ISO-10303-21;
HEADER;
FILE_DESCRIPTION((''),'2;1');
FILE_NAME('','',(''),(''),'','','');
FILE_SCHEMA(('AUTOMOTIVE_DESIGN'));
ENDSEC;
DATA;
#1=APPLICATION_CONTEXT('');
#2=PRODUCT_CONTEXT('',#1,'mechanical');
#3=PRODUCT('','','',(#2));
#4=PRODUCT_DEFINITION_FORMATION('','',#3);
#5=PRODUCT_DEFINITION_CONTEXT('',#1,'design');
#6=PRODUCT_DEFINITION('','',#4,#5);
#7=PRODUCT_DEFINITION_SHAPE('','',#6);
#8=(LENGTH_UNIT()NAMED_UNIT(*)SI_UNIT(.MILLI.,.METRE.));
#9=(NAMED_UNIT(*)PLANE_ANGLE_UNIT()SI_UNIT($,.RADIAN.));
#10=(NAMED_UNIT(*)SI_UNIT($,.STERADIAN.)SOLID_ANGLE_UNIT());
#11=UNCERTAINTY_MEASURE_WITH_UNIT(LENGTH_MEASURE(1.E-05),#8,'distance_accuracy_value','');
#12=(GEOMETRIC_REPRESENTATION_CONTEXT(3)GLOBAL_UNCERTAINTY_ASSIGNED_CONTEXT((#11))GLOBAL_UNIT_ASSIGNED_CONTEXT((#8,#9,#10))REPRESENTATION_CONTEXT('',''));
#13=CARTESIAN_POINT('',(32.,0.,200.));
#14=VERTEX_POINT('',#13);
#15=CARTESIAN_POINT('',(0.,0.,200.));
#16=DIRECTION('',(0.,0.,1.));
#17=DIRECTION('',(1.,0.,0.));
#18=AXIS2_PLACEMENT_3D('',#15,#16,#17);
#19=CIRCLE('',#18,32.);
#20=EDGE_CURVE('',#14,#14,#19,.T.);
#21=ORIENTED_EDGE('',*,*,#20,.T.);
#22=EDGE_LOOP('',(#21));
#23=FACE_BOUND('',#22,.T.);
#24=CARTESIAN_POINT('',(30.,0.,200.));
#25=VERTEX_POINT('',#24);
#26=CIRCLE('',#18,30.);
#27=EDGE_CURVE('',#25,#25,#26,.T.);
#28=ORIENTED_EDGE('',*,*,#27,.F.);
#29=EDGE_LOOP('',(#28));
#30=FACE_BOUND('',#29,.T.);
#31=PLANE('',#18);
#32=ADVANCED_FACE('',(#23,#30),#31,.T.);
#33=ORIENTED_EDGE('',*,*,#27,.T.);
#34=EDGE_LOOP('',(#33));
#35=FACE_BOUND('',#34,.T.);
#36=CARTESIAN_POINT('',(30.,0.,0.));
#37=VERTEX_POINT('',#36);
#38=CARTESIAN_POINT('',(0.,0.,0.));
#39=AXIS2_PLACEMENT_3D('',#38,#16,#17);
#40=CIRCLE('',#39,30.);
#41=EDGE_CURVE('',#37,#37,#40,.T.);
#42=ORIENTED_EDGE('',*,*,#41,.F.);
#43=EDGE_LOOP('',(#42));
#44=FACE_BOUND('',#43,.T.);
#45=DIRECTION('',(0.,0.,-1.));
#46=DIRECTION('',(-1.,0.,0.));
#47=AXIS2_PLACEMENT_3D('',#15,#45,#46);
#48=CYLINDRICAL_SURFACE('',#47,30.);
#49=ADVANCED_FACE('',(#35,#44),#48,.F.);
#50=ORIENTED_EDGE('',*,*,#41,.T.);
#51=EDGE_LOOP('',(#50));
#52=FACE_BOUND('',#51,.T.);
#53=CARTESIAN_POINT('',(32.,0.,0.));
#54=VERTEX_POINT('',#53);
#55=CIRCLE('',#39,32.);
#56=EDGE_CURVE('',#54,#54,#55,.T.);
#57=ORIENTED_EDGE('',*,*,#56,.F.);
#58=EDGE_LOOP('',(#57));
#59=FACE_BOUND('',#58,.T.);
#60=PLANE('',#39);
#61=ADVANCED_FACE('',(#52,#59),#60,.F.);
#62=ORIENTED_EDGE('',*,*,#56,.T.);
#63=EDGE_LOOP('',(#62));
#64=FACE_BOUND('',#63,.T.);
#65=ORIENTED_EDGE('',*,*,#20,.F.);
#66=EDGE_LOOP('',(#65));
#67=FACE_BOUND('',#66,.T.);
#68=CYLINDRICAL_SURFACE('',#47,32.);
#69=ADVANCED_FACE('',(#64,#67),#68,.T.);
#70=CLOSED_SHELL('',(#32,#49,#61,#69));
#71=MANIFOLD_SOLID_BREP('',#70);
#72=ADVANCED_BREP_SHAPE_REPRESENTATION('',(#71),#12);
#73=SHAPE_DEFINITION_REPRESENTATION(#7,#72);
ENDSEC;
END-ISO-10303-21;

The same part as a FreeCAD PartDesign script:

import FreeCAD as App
import Part
import Sketcher

doc = App.newDocument("Part")
body = doc.addObject("PartDesign::Body", "Body")

sketch1 = body.newObject("Sketcher::SketchObject", "Sketch")
sketch1.AttachmentSupport = (doc.getObject("XY_Plane"), [""])
sketch1.MapMode = "FlatFace"
sketch1.addGeometry([
    Part.Circle(App.Vector(0, 0, 0), App.Vector(0, 0, 1), 32),
    Part.Circle(App.Vector(0, 0, 0), App.Vector(0, 0, 1), 30),
], False)
sketch1.addConstraint([
    Sketcher.Constraint("Coincident", 0, 3, -1, 1),
    Sketcher.Constraint("Coincident", 1, 3, -1, 1),
    Sketcher.Constraint("Diameter", 0, 64.0),
    Sketcher.Constraint("Diameter", 1, 60.0),
])
pad1 = body.newObject("PartDesign::Pad", "Pad")
pad1.Profile = sketch1
pad1.Length = 200

doc.recompute()
